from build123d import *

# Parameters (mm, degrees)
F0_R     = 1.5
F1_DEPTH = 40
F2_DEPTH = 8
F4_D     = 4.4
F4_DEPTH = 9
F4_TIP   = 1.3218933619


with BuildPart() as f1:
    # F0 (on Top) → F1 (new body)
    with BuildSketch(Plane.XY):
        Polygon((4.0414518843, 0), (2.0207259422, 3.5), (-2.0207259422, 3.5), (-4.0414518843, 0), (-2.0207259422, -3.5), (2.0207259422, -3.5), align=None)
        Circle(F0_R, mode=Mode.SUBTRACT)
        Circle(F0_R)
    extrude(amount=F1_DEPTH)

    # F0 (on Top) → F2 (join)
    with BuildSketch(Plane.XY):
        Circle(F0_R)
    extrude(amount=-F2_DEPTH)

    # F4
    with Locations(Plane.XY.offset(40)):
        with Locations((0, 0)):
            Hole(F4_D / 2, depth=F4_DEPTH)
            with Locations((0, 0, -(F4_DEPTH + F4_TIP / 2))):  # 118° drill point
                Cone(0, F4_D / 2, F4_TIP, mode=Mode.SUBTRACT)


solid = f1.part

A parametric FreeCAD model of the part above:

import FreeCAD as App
import Part
import Sketcher

V = App.Vector
Q = App.Units.Quantity

doc = App.newDocument("Part")
body = doc.addObject("PartDesign::Body", "Body")

# Sketch on XY plane
sketch1 = doc.addObject("Sketcher::SketchObject", "Sketch")
body.addObject(sketch1)
sketch1.AttachmentSupport = (doc.XY_Plane, [""])
sketch1.MapMode = "FlatFace"
sketch1.addGeometry(Part.LineSegment(V(4, 0, 0), V(2, 3.5, 0)), False)
sketch1.addGeometry(Part.LineSegment(V(2, 3.5, 0), V(-2, 3.5, 0)), False)
sketch1.addGeometry(Part.LineSegment(V(-2, 3.5, 0), V(-4, 0, 0)), False)
sketch1.addGeometry(Part.LineSegment(V(-4, 0, 0), V(-2, -3.5, 0)), False)
sketch1.addGeometry(Part.LineSegment(V(-2, -3.5, 0), V(2, -3.5, 0)), False)
sketch1.addGeometry(Part.LineSegment(V(2, -3.5, 0), V(4, 0, 0)), False)
sketch1.addConstraint(Sketcher.Constraint("Coincident", 0, 2, 1, 1))
sketch1.addConstraint(Sketcher.Constraint("Coincident", 1, 2, 2, 1))
sketch1.addConstraint(Sketcher.Constraint("Coincident", 2, 2, 3, 1))
sketch1.addConstraint(Sketcher.Constraint("Coincident", 3, 2, 4, 1))
sketch1.addConstraint(Sketcher.Constraint("Coincident", 4, 2, 5, 1))
sketch1.addConstraint(Sketcher.Constraint("Coincident", 5, 2, 0, 1))
sketch1.addConstraint(Sketcher.Constraint("Horizontal", 1))
sketch1.addConstraint(Sketcher.Constraint("Horizontal", 4))
sketch1.addConstraint(Sketcher.Constraint("Symmetric", 0, 2, 3, 2, -1, 1))
sketch1.addConstraint(Sketcher.Constraint("Symmetric", 2, 2, 5, 2, -1, 1))
sketch1.addConstraint(Sketcher.Constraint("PointOnObject", 2, 2, -1))
sketch1.addConstraint(Sketcher.Constraint("Parallel", 2, 5))
sketch1.addConstraint(Sketcher.Constraint("Vertical", 1, 2, 3, 2))
sketch1.addConstraint(Sketcher.Constraint("Angle", 0, Q("120 deg")))
sketch1.addConstraint(Sketcher.Constraint("DistanceY", 3, 2, 1, 2, 7.0))
sketch1.addConstraint(Sketcher.Constraint("DistanceX", 1, 2, 1, 1, 4.041452))
pad1 = doc.addObject("PartDesign::Pad", "Pad")
body.addObject(pad1)
pad1.Profile = sketch1
pad1.Length = 40

# Sketch on XY plane
sketch2 = doc.addObject("Sketcher::SketchObject", "Sketch001")
body.addObject(sketch2)
sketch2.AttachmentSupport = (doc.XY_Plane, [""])
sketch2.MapMode = "FlatFace"
sketch2.addGeometry(Part.Circle(V(0, 0, 0), V(0, 0, 1), 1.5), False)
sketch2.addConstraint(Sketcher.Constraint("Coincident", 0, 3, -1, 1))
sketch2.addConstraint(Sketcher.Constraint("Diameter", 0, 3.0))
pad2 = doc.addObject("PartDesign::Pad", "Pad001")
body.addObject(pad2)
pad2.Profile = sketch2
pad2.Length = 8
pad2.Reversed = True

# Sketch on XY plane
sketch3 = doc.addObject("Sketcher::SketchObject", "Sketch002")
body.addObject(sketch3)
sketch3.AttachmentSupport = (doc.XY_Plane, [""])
sketch3.MapMode = "FlatFace"
sketch3.AttachmentOffset = App.Placement(V(0, 0, 40), App.Rotation())
sketch3.addGeometry(Part.Circle(V(0, 0, 0), V(0, 0, 1), 2.2), False)
sketch3.addConstraint(Sketcher.Constraint("Coincident", 0, 3, -1, 1))
sketch3.addConstraint(Sketcher.Constraint("Diameter", 0, 4.4))
doc.recompute()
hole = doc.addObject("PartDesign::Hole", "Hole")
body.addObject(hole)
hole.Profile = sketch3
hole.ThreadType = "None"
hole.Diameter = 4.4
hole.DepthType = "Dimension"
hole.Depth = 9
hole.DrillPoint = "Angled"
hole.DrillPointAngle = 118

doc.recompute()
